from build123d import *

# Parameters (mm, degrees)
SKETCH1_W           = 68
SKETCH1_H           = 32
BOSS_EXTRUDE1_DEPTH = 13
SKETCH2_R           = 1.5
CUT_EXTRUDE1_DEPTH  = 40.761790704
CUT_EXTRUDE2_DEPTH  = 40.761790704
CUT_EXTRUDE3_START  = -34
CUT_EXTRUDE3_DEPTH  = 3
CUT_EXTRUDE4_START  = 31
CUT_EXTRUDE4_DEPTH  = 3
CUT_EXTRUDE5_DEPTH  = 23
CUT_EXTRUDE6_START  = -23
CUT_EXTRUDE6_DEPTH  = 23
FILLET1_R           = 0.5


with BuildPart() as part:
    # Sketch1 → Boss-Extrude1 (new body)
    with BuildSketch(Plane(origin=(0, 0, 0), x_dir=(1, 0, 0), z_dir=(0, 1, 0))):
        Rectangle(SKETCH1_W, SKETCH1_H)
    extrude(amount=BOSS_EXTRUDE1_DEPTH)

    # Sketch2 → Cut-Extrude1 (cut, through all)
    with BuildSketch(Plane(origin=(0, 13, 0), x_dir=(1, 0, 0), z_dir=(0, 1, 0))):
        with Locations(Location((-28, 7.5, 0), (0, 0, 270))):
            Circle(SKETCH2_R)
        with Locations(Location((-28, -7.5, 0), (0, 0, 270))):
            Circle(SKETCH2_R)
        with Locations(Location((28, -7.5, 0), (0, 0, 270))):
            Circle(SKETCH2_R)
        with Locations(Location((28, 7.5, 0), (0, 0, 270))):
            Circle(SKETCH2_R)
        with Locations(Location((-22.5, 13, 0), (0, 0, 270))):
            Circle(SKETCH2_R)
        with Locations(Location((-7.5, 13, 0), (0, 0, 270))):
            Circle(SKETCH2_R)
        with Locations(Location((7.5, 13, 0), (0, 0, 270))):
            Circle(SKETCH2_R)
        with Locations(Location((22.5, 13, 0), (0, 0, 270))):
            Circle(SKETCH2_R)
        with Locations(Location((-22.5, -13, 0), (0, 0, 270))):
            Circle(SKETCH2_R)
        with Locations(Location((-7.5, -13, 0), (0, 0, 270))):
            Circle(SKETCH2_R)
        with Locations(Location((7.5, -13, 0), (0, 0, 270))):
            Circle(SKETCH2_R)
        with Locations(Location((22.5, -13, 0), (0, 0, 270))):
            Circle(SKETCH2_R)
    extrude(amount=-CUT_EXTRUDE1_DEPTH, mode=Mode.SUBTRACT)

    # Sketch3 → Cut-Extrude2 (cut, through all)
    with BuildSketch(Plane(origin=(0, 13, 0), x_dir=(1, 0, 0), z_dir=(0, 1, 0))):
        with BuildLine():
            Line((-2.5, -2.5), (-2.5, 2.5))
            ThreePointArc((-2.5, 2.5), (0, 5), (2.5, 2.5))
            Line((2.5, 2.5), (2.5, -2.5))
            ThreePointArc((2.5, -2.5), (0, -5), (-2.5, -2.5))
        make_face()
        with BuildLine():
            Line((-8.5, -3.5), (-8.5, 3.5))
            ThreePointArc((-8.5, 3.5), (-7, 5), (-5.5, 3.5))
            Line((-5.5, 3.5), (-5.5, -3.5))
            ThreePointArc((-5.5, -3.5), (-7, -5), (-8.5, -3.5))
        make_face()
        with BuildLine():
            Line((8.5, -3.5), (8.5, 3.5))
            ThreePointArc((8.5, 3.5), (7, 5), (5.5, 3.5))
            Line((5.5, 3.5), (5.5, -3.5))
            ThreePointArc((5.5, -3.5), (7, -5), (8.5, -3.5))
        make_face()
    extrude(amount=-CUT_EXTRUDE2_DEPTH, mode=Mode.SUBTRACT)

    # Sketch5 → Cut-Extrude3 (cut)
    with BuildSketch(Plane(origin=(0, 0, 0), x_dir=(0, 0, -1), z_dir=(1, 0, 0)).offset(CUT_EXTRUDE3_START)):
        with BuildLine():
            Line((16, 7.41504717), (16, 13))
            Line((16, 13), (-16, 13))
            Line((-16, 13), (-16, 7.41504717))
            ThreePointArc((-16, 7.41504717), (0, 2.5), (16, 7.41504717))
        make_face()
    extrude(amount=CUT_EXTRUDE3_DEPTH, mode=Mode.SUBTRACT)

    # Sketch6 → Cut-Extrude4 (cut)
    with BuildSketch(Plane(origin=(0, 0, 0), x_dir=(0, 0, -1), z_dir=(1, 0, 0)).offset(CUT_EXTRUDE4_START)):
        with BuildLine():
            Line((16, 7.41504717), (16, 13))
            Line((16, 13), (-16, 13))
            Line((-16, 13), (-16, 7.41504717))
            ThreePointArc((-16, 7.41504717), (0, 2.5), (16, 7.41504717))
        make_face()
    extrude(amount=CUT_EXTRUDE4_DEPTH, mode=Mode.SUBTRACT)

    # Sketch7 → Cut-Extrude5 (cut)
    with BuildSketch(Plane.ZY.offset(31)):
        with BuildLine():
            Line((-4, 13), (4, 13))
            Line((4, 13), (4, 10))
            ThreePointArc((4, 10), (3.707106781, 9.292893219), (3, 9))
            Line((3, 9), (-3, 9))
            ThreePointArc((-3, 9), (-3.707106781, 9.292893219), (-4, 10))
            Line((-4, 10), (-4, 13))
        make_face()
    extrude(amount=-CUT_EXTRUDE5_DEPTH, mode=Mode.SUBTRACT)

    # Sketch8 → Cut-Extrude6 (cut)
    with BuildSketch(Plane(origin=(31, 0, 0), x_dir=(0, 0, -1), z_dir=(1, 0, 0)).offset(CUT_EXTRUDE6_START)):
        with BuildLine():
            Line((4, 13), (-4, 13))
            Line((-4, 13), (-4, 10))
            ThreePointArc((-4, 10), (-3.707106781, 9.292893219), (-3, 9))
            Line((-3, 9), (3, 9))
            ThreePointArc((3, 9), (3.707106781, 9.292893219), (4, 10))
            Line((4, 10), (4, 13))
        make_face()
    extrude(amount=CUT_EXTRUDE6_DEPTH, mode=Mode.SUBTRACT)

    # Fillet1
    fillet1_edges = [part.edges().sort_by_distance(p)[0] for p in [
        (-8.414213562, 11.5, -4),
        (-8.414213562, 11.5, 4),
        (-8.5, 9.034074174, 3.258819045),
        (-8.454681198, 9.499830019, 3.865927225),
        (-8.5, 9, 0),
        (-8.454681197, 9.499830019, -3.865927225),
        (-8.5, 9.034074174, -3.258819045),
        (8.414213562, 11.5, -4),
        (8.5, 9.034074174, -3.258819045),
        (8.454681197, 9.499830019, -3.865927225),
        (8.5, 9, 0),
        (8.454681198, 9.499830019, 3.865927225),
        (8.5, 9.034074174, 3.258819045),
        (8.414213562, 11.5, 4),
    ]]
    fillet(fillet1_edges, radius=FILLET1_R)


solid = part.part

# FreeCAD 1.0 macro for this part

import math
import FreeCAD as App
import Part
import Sketcher
Q = App.Units.Quantity


def edges_at(feature, points):
    """Names of the edges that pass closest to the given points."""
    edges = feature.Shape.Edges
    near = lambda p: min(range(len(edges)), key=lambda i: edges[i].distToShape(Part.Vertex(*p))[0])
    return sorted({f"Edge{near(p) + 1}" for p in points})

doc = App.newDocument("Part")
body = doc.addObject("PartDesign::Body", "Body")

# Sketch on XZ plane
sketch1 = body.newObject("Sketcher::SketchObject", "Sketch")
sketch1.AttachmentSupport = (doc.getObject("XZ_Plane"), [""])
sketch1.MapMode = "FlatFace"
sketch1.addGeometry(Part.LineSegment(App.Vector(-34, -16, 0), App.Vector(-34, 16, 0)), False)
sketch1.addGeometry(Part.LineSegment(App.Vector(-34, 16, 0), App.Vector(34, 16, 0)), False)
sketch1.addGeometry(Part.LineSegment(App.Vector(34, 16, 0), App.Vector(34, -16, 0)), False)
sketch1.addGeometry(Part.LineSegment(App.Vector(34, -16, 0), App.Vector(-34, -16, 0)), False)
sketch1.addConstraint(Sketcher.Constraint("Coincident", 0, 2, 1, 1))
sketch1.addConstraint(Sketcher.Constraint("Coincident", 1, 2, 2, 1))
sketch1.addConstraint(Sketcher.Constraint("Coincident", 2, 2, 3, 1))
sketch1.addConstraint(Sketcher.Constraint("Coincident", 3, 2, 0, 1))
sketch1.addConstraint(Sketcher.Constraint("Vertical", 0))
sketch1.addConstraint(Sketcher.Constraint("Horizontal", 1))
sketch1.addConstraint(Sketcher.Constraint("Vertical", 2))
sketch1.addConstraint(Sketcher.Constraint("Horizontal", 3))
sketch1.addConstraint(Sketcher.Constraint("Symmetric", 0, 2, 2, 2, -1, 1))
sketch1.addConstraint(Sketcher.Constraint("DistanceX", 1, 1, 1, 2, Q("68 mm")))
sketch1.addConstraint(Sketcher.Constraint("DistanceY", 0, 1, 0, 2, Q("32 mm")))
pad1 = body.newObject("PartDesign::Pad", "Pad")
pad1.Profile = sketch1
pad1.Length = 13
pad1.Reversed = True

# Sketch on XZ plane
sketch2 = body.newObject("Sketcher::SketchObject", "Sketch001")
sketch2.AttachmentSupport = (doc.getObject("XZ_Plane"), [""])
sketch2.MapMode = "FlatFace"
sketch2.AttachmentOffset = App.Placement(App.Vector(0, 0, -13), App.Rotation())
sketch2.addGeometry(Part.Circle(App.Vector(-28, -7.5, 0), App.Vector(0, 0, 1), 1.5), False)
sketch2.addGeometry(Part.Circle(App.Vector(-28, 7.5, 0), App.Vector(0, 0, 1), 1.5), False)
sketch2.addGeometry(Part.Circle(App.Vector(28, 7.5, 0), App.Vector(0, 0, 1), 1.5), False)
sketch2.addGeometry(Part.Circle(App.Vector(28, -7.5, 0), App.Vector(0, 0, 1), 1.5), False)
sketch2.addGeometry(Part.Circle(App.Vector(-22.5, -13, 0), App.Vector(0, 0, 1), 1.5), False)
sketch2.addGeometry(Part.Circle(App.Vector(-7.5, -13, 0), App.Vector(0, 0, 1), 1.5), False)
sketch2.addGeometry(Part.Circle(App.Vector(7.5, -13, 0), App.Vector(0, 0, 1), 1.5), False)
sketch2.addGeometry(Part.Circle(App.Vector(22.5, -13, 0), App.Vector(0, 0, 1), 1.5), False)
sketch2.addGeometry(Part.Circle(App.Vector(-22.5, 13, 0), App.Vector(0, 0, 1), 1.5), False)
sketch2.addGeometry(Part.Circle(App.Vector(-7.5, 13, 0), App.Vector(0, 0, 1), 1.5), False)
sketch2.addGeometry(Part.Circle(App.Vector(7.5, 13, 0), App.Vector(0, 0, 1), 1.5), False)
sketch2.addGeometry(Part.Circle(App.Vector(22.5, 13, 0), App.Vector(0, 0, 1), 1.5), False)
sketch2.addConstraint(Sketcher.Constraint("Equal", 0, 1))
sketch2.addConstraint(Sketcher.Constraint("Equal", 1, 2))
sketch2.addConstraint(Sketcher.Constraint("Equal", 2, 3))
sketch2.addConstraint(Sketcher.Constraint("Equal", 3, 4))
sketch2.addConstraint(Sketcher.Constraint("Equal", 4, 5))
sketch2.addConstraint(Sketcher.Constraint("Equal", 5, 6))
sketch2.addConstraint(Sketcher.Constraint("Equal", 6, 7))
sketch2.addConstraint(Sketcher.Constraint("Equal", 7, 8))
sketch2.addConstraint(Sketcher.Constraint("Equal", 8, 9))
sketch2.addConstraint(Sketcher.Constraint("Equal", 9, 10))
sketch2.addConstraint(Sketcher.Constraint("Equal", 10, 11))
sketch2.addConstraint(Sketcher.Constraint("Symmetric", 0, 3, 2, 3, -1, 1))
sketch2.addConstraint(Sketcher.Constraint("Symmetric", 1, 3, 3, 3, -1, 1))
sketch2.addConstraint(Sketcher.Constraint("Symmetric", 7, 3, 8, 3, -1, 1))
sketch2.addConstraint(Sketcher.Constraint("Symmetric", 6, 3, 9, 3, -1, 1))
sketch2.addConstraint(Sketcher.Constraint("Symmetric", 5, 3, 10, 3, -1, 1))
sketch2.addConstraint(Sketcher.Constraint("Symmetric", 4, 3, 11, 3, -1, 1))
sketch2.addConstraint(Sketcher.Constraint("Symmetric", 1, 3, 2, 3, -2))
sketch2.addConstraint(Sketcher.Constraint("Symmetric", 5, 3, 6, 3, -2))
sketch2.addConstraint(Sketcher.Constraint("Symmetric", 4, 3, 7, 3, -2))
sketch2.addConstraint(Sketcher.Constraint("Horizontal", 4, 3, 5, 3))
sketch2.addConstraint(Sketcher.Constraint("Diameter", 0, Q("3 mm")))
sketch2.addConstraint(Sketcher.Constraint("DistanceX", 0, 3, -1, 1, Q("28 mm")))
sketch2.addConstraint(Sketcher.Constraint("DistanceY", 4, 3, -1, 1, Q("13 mm")))
sketch2.addConstraint(Sketcher.Constraint("DistanceY", 0, 3, 1, 3, Q("15 mm")))
sketch2.addConstraint(Sketcher.Constraint("DistanceX", 4, 3, 5, 3, Q("15 mm")))
sketch2.addConstraint(Sketcher.Constraint("DistanceX", 5, 3, 6, 3, Q("15 mm")))
pocket1 = body.newObject("PartDesign::Pocket", "Pocket")
pocket1.Profile = sketch2
pocket1.Type = "ThroughAll"
pocket1.Reversed = True

# Sketch on XZ plane
sketch3 = body.newObject("Sketcher::SketchObject", "Sketch002")
sketch3.AttachmentSupport = (doc.getObject("XZ_Plane"), [""])
sketch3.MapMode = "FlatFace"
sketch3.AttachmentOffset = App.Placement(App.Vector(0, 0, -13), App.Rotation())
sketch3.addGeometry(Part.LineSegment(App.Vector(-2.5, -2.5, 0), App.Vector(-2.5, 2.5, 0)), False)
sketch3.addGeometry(Part.ArcOfCircle(Part.Circle(App.Vector(0, 2.5, 0), App.Vector(0, 0, 1), 2.5), math.radians(0), math.radians(180)), False)
sketch3.addGeometry(Part.LineSegment(App.Vector(2.5, 2.5, 0), App.Vector(2.5, -2.5, 0)), False)
sketch3.addGeometry(Part.ArcOfCircle(Part.Circle(App.Vector(0, -2.5, 0), App.Vector(0, 0, 1), 2.5), math.radians(180), math.radians(360)), False)
sketch3.addGeometry(Part.LineSegment(App.Vector(-8.5, -3.5, 0), App.Vector(-8.5, 3.5, 0)), False)
sketch3.addGeometry(Part.ArcOfCircle(Part.Circle(App.Vector(-7, 3.5, 0), App.Vector(0, 0, 1), 1.5), math.radians(0), math.radians(180)), False)
sketch3.addGeometry(Part.LineSegment(App.Vector(-5.5, 3.5, 0), App.Vector(-5.5, -3.5, 0)), False)
sketch3.addGeometry(Part.ArcOfCircle(Part.Circle(App.Vector(-7, -3.5, 0), App.Vector(0, 0, 1), 1.5), math.radians(180), math.radians(360)), False)
sketch3.addGeometry(Part.LineSegment(App.Vector(8.5, 3.5, 0), App.Vector(8.5, -3.5, 0)), False)
sketch3.addGeometry(Part.ArcOfCircle(Part.Circle(App.Vector(7, -3.5, 0), App.Vector(0, 0, 1), 1.5), math.radians(180), math.radians(360)), False)
sketch3.addGeometry(Part.LineSegment(App.Vector(5.5, -3.5, 0), App.Vector(5.5, 3.5, 0)), False)
sketch3.addGeometry(Part.ArcOfCircle(Part.Circle(App.Vector(7, 3.5, 0), App.Vector(0, 0, 1), 1.5), math.radians(0), math.radians(180)), False)
sketch3.addConstraint(Sketcher.Constraint("Tangent", 0, 2, 1, 2))
sketch3.addConstraint(Sketcher.Constraint("Tangent", 1, 1, 2, 1))
sketch3.addConstraint(Sketcher.Constraint("Tangent", 2, 2, 3, 2))
sketch3.addConstraint(Sketcher.Constraint("Tangent", 3, 1, 0, 1))
sketch3.addConstraint(Sketcher.Constraint("Tangent", 4, 2, 5, 2))
sketch3.addConstraint(Sketcher.Constraint("Tangent", 5, 1, 6, 1))
sketch3.addConstraint(Sketcher.Constraint("Tangent", 6, 2, 7, 2))
sketch3.addConstraint(Sketcher.Constraint("Tangent", 7, 1, 4, 1))
sketch3.addConstraint(Sketcher.Constraint("Tangent", 8, 2, 9, 2))
sketch3.addConstraint(Sketcher.Constraint("Tangent", 9, 1, 10, 1))
sketch3.addConstraint(Sketcher.Constraint("Tangent", 10, 2, 11, 2))
sketch3.addConstraint(Sketcher.Constraint("Tangent", 11, 1, 8, 1))
sketch3.addConstraint(Sketcher.Constraint("Vertical", 0))
sketch3.addConstraint(Sketcher.Constraint("Vertical", 2))
sketch3.addConstraint(Sketcher.Constraint("Vertical", 4))
sketch3.addConstraint(Sketcher.Constraint("Vertical", 6))
sketch3.addConstraint(Sketcher.Constraint("Vertical", 8))
sketch3.addConstraint(Sketcher.Constraint("Vertical", 10))
sketch3.addConstraint(Sketcher.Constraint("Equal", 7, 9))
sketch3.addConstraint(Sketcher.Constraint("Symmetric", 1, 3, 3, 3, -1, 1))
sketch3.addConstraint(Sketcher.Constraint("Symmetric", 5, 3, 9, 3, -1, 1))
sketch3.addConstraint(Sketcher.Constraint("Horizontal", 7, 3, 9, 3))
sketch3.addConstraint(Sketcher.Constraint("Horizontal", 5, 3, 11, 3))
sketch3.addConstraint(Sketcher.Constraint("Radius", 1, Q("2.5 mm")))
sketch3.addConstraint(Sketcher.Constraint("Radius", 5, Q("1.5 mm")))
sketch3.addConstraint(Sketcher.Constraint("DistanceY", 0, 1, 0, 2, Q("5 mm")))
sketch3.addConstraint(Sketcher.Constraint("DistanceY", 4, 1, 4, 2, Q("7 mm")))
sketch3.addConstraint(Sketcher.Constraint("DistanceX", 5, 3, -1, 1, Q("7 mm")))
pocket2 = body.newObject("PartDesign::Pocket", "Pocket001")
pocket2.Profile = sketch3
pocket2.Type = "ThroughAll"
pocket2.Reversed = True

# Sketch on YZ plane
sketch4 = body.newObject("Sketcher::SketchObject", "Sketch003")
sketch4.AttachmentSupport = (doc.getObject("YZ_Plane"), [""])
sketch4.MapMode = "FlatFace"
sketch4.AttachmentOffset = App.Placement(App.Vector(0, 0, -34), App.Rotation())
sketch4.addGeometry(Part.LineSegment(App.Vector(7, -16, 0), App.Vector(13, -16, 0)), False)
sketch4.addGeometry(Part.LineSegment(App.Vector(13, -16, 0), App.Vector(13, 16, 0)), False)
sketch4.addGeometry(Part.LineSegment(App.Vector(13, 16, 0), App.Vector(7, 16, 0)), False)
sketch4.addGeometry(Part.ArcOfCircle(Part.Circle(App.Vector(31, 0, 0), App.Vector(0, 0, 1), 28), math.radians(146), math.radians(214)), False)
sketch4.addConstraint(Sketcher.Constraint("Coincident", 0, 2, 1, 1))
sketch4.addConstraint(Sketcher.Constraint("Coincident", 1, 2, 2, 1))
sketch4.addConstraint(Sketcher.Constraint("Coincident", 2, 2, 3, 1))
sketch4.addConstraint(Sketcher.Constraint("Coincident", 3, 2, 0, 1))
sketch4.addConstraint(Sketcher.Constraint("Horizontal", 0))
sketch4.addConstraint(Sketcher.Constraint("Vertical", 1))
sketch4.addConstraint(Sketcher.Constraint("Horizontal", 2))
sketch4.addConstraint(Sketcher.Constraint("Symmetric", 2, 2, 3, 2, -1))
sketch4.addConstraint(Sketcher.Constraint("Radius", 3, Q("28.5 mm")))
sketch4.addConstraint(Sketcher.Constraint("DistanceY", 1, 1, 1, 2, Q("32 mm")))
sketch4.addConstraint(Sketcher.Constraint("DistanceX", -1, 1, 3, 3, Q("31 mm")))
sketch4.addConstraint(Sketcher.Constraint("DistanceX", -1, 1, 0, 2, Q("13 mm")))
pocket3 = body.newObject("PartDesign::Pocket", "Pocket002")
pocket3.Profile = sketch4
pocket3.Length = 3
pocket3.Reversed = True

# Sketch on YZ plane
sketch5 = body.newObject("Sketcher::SketchObject", "Sketch004")
sketch5.AttachmentSupport = (doc.getObject("YZ_Plane"), [""])
sketch5.MapMode = "FlatFace"
sketch5.AttachmentOffset = App.Placement(App.Vector(0, 0, 31), App.Rotation())
sketch5.addGeometry(Part.LineSegment(App.Vector(7, -16, 0), App.Vector(13, -16, 0)), False)
sketch5.addGeometry(Part.LineSegment(App.Vector(13, -16, 0), App.Vector(13, 16, 0)), False)
sketch5.addGeometry(Part.LineSegment(App.Vector(13, 16, 0), App.Vector(7, 16, 0)), False)
sketch5.addGeometry(Part.ArcOfCircle(Part.Circle(App.Vector(31, 0, 0), App.Vector(0, 0, 1), 28), math.radians(146), math.radians(214)), False)
sketch5.addConstraint(Sketcher.Constraint("Coincident", 0, 2, 1, 1))
sketch5.addConstraint(Sketcher.Constraint("Coincident", 1, 2, 2, 1))
sketch5.addConstraint(Sketcher.Constraint("Coincident", 2, 2, 3, 1))
sketch5.addConstraint(Sketcher.Constraint("Coincident", 3, 2, 0, 1))
sketch5.addConstraint(Sketcher.Constraint("Horizontal", 0))
sketch5.addConstraint(Sketcher.Constraint("Vertical", 1))
sketch5.addConstraint(Sketcher.Constraint("Horizontal", 2))
sketch5.addConstraint(Sketcher.Constraint("Symmetric", 2, 2, 3, 2, -1))
sketch5.addConstraint(Sketcher.Constraint("Radius", 3, Q("28.5 mm")))
sketch5.addConstraint(Sketcher.Constraint("DistanceY", 1, 1, 1, 2, Q("32 mm")))
sketch5.addConstraint(Sketcher.Constraint("DistanceX", -1, 1, 3, 3, Q("31 mm")))
sketch5.addConstraint(Sketcher.Constraint("DistanceX", -1, 1, 0, 2, Q("13 mm")))
pocket4 = body.newObject("PartDesign::Pocket", "Pocket003")
pocket4.Profile = sketch5
pocket4.Length = 3
pocket4.Reversed = True

# Sketch on YZ plane
sketch6 = body.newObject("Sketcher::SketchObject", "Sketch005")
sketch6.AttachmentSupport = (doc.getObject("YZ_Plane"), [""])
sketch6.MapMode = "FlatFace"
sketch6.AttachmentOffset = App.Placement(App.Vector(0, 0, -31), App.Rotation())
sketch6.addGeometry(Part.LineSegment(App.Vector(13, 4, 0), App.Vector(13, -4, 0)), False)
sketch6.addGeometry(Part.LineSegment(App.Vector(13, -4, 0), App.Vector(10, -4, 0)), False)
sketch6.addGeometry(Part.ArcOfCircle(Part.Circle(App.Vector(10, -3, 0), App.Vector(0, 0, 1), 1), math.radians(-180), math.radians(-90)), False)
sketch6.addGeometry(Part.LineSegment(App.Vector(9, -3, 0), App.Vector(9, 3, 0)), False)
sketch6.addGeometry(Part.ArcOfCircle(Part.Circle(App.Vector(10, 3, 0), App.Vector(0, 0, 1), 1), math.radians(90), math.radians(180)), False)
sketch6.addGeometry(Part.LineSegment(App.Vector(10, 4, 0), App.Vector(13, 4, 0)), False)
sketch6.addConstraint(Sketcher.Constraint("Coincident", 0, 2, 1, 1))
sketch6.addConstraint(Sketcher.Constraint("Tangent", 1, 2, 2, 2))
sketch6.addConstraint(Sketcher.Constraint("Tangent", 2, 1, 3, 1))
sketch6.addConstraint(Sketcher.Constraint("Tangent", 3, 2, 4, 2))
sketch6.addConstraint(Sketcher.Constraint("Tangent", 4, 1, 5, 1))
sketch6.addConstraint(Sketcher.Constraint("Coincident", 5, 2, 0, 1))
sketch6.addConstraint(Sketcher.Constraint("Vertical", 0))
sketch6.addConstraint(Sketcher.Constraint("Horizontal", 1))
sketch6.addConstraint(Sketcher.Constraint("Vertical", 3))
sketch6.addConstraint(Sketcher.Constraint("Horizontal", 5))
sketch6.addConstraint(Sketcher.Constraint("Equal", 2, 4))
sketch6.addConstraint(Sketcher.Constraint("Radius", 2, Q("1 mm")))
sketch6.addConstraint(Sketcher.Constraint("DistanceX", 1, 2, 1, 1, Q("3 mm")))
sketch6.addConstraint(Sketcher.Constraint("DistanceY", 0, 2, 0, 1, Q("8 mm")))
sketch6.addConstraint(Sketcher.Constraint("DistanceX", -1, 1, 2, 3, Q("10 mm")))
sketch6.addConstraint(Sketcher.Constraint("DistanceY", 2, 3, -1, 1, Q("3 mm")))
pocket5 = body.newObject("PartDesign::Pocket", "Pocket004")
pocket5.Profile = sketch6
pocket5.Length = 23
pocket5.Reversed = True

# Sketch on YZ plane
sketch7 = body.newObject("Sketcher::SketchObject", "Sketch006")
sketch7.AttachmentSupport = (doc.getObject("YZ_Plane"), [""])
sketch7.MapMode = "FlatFace"
sketch7.AttachmentOffset = App.Placement(App.Vector(0, 0, 8), App.Rotation())
sketch7.addGeometry(Part.LineSegment(App.Vector(13, -4, 0), App.Vector(13, 4, 0)), False)
sketch7.addGeometry(Part.LineSegment(App.Vector(13, 4, 0), App.Vector(10, 4, 0)), False)
sketch7.addGeometry(Part.ArcOfCircle(Part.Circle(App.Vector(10, 3, 0), App.Vector(0, 0, 1), 1), math.radians(90), math.radians(180)), False)
sketch7.addGeometry(Part.LineSegment(App.Vector(9, 3, 0), App.Vector(9, -3, 0)), False)
sketch7.addGeometry(Part.ArcOfCircle(Part.Circle(App.Vector(10, -3, 0), App.Vector(0, 0, 1), 1), math.radians(-180), math.radians(-90)), False)
sketch7.addGeometry(Part.LineSegment(App.Vector(10, -4, 0), App.Vector(13, -4, 0)), False)
sketch7.addConstraint(Sketcher.Constraint("Coincident", 0, 2, 1, 1))
sketch7.addConstraint(Sketcher.Constraint("Tangent", 1, 2, 2, 1))
sketch7.addConstraint(Sketcher.Constraint("Tangent", 2, 2, 3, 1))
sketch7.addConstraint(Sketcher.Constraint("Tangent", 3, 2, 4, 1))
sketch7.addConstraint(Sketcher.Constraint("Tangent", 4, 2, 5, 1))
sketch7.addConstraint(Sketcher.Constraint("Coincident", 5, 2, 0, 1))
sketch7.addConstraint(Sketcher.Constraint("Vertical", 0))
sketch7.addConstraint(Sketcher.Constraint("Horizontal", 1))
sketch7.addConstraint(Sketcher.Constraint("Vertical", 3))
sketch7.addConstraint(Sketcher.Constraint("Horizontal", 5))
sketch7.addConstraint(Sketcher.Constraint("Equal", 2, 4))
sketch7.addConstraint(Sketcher.Constraint("Radius", 2, Q("1 mm")))
sketch7.addConstraint(Sketcher.Constraint("DistanceX", 1, 2, 1, 1, Q("3 mm")))
sketch7.addConstraint(Sketcher.Constraint("DistanceY", 0, 1, 0, 2, Q("8 mm")))
sketch7.addConstraint(Sketcher.Constraint("DistanceX", -1, 1, 2, 3, Q("10 mm")))
sketch7.addConstraint(Sketcher.Constraint("DistanceY", -1, 1, 2, 3, Q("3 mm")))
pocket6 = body.newObject("PartDesign::Pocket", "Pocket005")
pocket6.Profile = sketch7
pocket6.Length = 23
pocket6.Reversed = True
doc.recompute()

fillet = body.newObject("PartDesign::Fillet", "Fillet")
fillet.Base = (pocket6, edges_at(pocket6, [
    (-8.414, 11.5, -4),
    (-8.414, 11.5, 4),
    (-8.5, 9.034, 3.259),
    (-8.455, 9.5, 3.866),
    (-8.5, 9, 0),
    (-8.455, 9.5, -3.866),
    (-8.5, 9.034, -3.259),
    (8.414, 11.5, -4),
    (8.5, 9.034, -3.259),
    (8.455, 9.5, -3.866),
    (8.5, 9, 0),
    (8.455, 9.5, 3.866),
    (8.5, 9.034, 3.259),
    (8.414, 11.5, 4),
]))
fillet.Radius = 0.5

doc.recompute()
